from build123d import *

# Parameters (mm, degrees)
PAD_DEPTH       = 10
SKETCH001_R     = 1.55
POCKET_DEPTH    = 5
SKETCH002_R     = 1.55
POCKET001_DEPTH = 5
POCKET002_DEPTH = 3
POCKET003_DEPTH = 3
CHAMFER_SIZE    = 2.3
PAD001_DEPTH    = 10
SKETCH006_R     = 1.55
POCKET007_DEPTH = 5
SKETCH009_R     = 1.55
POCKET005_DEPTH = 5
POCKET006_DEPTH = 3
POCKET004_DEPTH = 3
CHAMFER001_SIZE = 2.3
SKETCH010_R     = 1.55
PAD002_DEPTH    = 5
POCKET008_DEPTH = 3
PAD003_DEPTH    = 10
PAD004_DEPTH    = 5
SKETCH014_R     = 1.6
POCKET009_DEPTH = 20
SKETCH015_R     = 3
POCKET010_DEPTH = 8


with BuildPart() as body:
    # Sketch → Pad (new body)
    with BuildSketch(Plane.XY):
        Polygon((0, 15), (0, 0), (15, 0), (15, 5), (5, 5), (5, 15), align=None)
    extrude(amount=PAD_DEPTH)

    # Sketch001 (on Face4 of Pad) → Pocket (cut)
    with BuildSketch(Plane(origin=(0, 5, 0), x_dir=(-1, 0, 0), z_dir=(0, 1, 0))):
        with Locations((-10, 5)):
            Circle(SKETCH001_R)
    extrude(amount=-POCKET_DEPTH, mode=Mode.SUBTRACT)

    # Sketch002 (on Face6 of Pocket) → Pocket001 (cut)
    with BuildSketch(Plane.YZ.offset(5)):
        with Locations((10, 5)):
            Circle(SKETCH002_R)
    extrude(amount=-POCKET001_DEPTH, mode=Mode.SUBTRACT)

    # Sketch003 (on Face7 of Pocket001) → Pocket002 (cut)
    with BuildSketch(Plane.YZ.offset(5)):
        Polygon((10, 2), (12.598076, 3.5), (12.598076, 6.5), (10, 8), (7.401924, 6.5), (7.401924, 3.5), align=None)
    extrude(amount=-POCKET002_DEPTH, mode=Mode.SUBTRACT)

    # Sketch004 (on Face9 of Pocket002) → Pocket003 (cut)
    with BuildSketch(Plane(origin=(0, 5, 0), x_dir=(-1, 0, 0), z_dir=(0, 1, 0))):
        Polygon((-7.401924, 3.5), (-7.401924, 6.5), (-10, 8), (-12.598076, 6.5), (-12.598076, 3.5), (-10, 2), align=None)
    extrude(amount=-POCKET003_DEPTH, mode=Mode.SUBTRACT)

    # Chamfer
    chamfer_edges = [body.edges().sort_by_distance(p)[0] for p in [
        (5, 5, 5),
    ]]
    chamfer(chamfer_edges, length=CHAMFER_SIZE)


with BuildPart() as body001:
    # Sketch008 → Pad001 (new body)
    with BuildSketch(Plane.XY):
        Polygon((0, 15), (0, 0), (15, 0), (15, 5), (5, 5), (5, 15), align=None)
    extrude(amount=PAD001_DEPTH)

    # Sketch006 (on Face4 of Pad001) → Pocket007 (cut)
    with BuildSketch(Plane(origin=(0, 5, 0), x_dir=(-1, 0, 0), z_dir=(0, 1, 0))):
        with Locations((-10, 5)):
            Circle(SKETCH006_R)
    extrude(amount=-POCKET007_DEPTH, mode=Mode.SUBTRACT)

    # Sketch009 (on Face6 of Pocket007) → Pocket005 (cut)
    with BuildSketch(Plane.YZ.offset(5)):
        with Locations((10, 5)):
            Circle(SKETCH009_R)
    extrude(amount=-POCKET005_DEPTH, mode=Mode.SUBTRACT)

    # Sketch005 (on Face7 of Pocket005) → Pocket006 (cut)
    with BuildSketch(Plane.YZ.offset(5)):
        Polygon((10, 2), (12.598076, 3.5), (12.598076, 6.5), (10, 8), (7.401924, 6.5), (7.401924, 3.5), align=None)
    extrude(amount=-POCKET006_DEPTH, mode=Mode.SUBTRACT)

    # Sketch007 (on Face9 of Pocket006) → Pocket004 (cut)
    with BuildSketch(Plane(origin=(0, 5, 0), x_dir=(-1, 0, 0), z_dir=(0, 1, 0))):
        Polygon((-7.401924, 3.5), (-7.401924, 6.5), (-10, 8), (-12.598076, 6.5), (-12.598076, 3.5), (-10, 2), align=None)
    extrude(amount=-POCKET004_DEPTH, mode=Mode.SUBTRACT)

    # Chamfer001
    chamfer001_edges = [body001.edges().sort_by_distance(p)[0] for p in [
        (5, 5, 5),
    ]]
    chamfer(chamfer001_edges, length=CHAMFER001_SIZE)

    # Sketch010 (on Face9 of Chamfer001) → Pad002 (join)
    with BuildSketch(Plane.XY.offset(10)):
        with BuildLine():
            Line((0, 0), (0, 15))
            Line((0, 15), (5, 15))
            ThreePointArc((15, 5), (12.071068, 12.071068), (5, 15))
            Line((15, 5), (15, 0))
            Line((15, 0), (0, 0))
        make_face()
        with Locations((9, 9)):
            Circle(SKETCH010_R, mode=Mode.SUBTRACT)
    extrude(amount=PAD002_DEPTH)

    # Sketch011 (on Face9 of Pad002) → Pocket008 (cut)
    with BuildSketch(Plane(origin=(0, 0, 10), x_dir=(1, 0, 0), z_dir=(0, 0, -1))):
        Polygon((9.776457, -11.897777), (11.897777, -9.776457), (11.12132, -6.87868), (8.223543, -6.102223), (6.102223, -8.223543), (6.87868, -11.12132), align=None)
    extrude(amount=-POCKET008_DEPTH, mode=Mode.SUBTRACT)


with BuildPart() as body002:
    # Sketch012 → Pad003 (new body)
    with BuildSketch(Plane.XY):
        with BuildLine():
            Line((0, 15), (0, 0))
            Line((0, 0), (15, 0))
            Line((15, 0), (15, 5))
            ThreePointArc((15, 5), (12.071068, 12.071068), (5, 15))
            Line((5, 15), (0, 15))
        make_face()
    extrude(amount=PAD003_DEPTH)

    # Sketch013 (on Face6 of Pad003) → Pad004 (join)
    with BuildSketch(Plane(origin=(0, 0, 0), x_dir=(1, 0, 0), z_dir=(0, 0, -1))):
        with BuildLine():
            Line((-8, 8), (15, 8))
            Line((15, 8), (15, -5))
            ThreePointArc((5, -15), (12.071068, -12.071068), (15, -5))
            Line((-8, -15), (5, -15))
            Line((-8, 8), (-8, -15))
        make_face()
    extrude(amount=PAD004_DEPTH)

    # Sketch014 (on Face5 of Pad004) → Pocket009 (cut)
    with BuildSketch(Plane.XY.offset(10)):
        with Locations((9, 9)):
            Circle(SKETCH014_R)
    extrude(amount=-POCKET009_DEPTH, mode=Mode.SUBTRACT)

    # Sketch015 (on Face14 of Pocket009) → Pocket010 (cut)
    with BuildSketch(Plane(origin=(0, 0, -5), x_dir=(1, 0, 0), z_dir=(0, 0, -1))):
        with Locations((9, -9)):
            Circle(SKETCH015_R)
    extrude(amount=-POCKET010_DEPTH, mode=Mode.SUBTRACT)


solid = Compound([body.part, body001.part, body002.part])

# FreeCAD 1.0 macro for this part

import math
import FreeCAD as App
import Part
import Sketcher
Q = App.Units.Quantity


def edges_at(feature, points):
    """Names of the edges that pass closest to the given points."""
    edges = feature.Shape.Edges
    near = lambda p: min(range(len(edges)), key=lambda i: edges[i].distToShape(Part.Vertex(*p))[0])
    return sorted({f"Edge{near(p) + 1}" for p in points})

doc = App.newDocument("Part")
body = doc.addObject("PartDesign::Body", "Body")

# Sketch on XY plane
sketch1 = body.newObject("Sketcher::SketchObject", "Sketch")
sketch1.AttachmentSupport = (doc.getObject("XY_Plane"), [""])
sketch1.MapMode = "FlatFace"
sketch1.addGeometry(Part.LineSegment(App.Vector(0, 15, 0), App.Vector(0, 0, 0)), False)
sketch1.addGeometry(Part.LineSegment(App.Vector(0, 0, 0), App.Vector(15, 0, 0)), False)
sketch1.addGeometry(Part.LineSegment(App.Vector(15, 0, 0), App.Vector(15, 5, 0)), False)
sketch1.addGeometry(Part.LineSegment(App.Vector(15, 5, 0), App.Vector(5, 5, 0)), False)
sketch1.addGeometry(Part.LineSegment(App.Vector(5, 5, 0), App.Vector(5, 15, 0)), False)
sketch1.addGeometry(Part.LineSegment(App.Vector(5, 15, 0), App.Vector(0, 15, 0)), False)
sketch1.addConstraint(Sketcher.Constraint("Coincident", 0, 2, 1, 1))
sketch1.addConstraint(Sketcher.Constraint("Coincident", 1, 2, 2, 1))
sketch1.addConstraint(Sketcher.Constraint("Coincident", 2, 2, 3, 1))
sketch1.addConstraint(Sketcher.Constraint("Coincident", 3, 2, 4, 1))
sketch1.addConstraint(Sketcher.Constraint("Coincident", 4, 2, 5, 1))
sketch1.addConstraint(Sketcher.Constraint("Coincident", 5, 2, 0, 1))
sketch1.addConstraint(Sketcher.Constraint("Vertical", 0))
sketch1.addConstraint(Sketcher.Constraint("Horizontal", 1))
sketch1.addConstraint(Sketcher.Constraint("Vertical", 2))
sketch1.addConstraint(Sketcher.Constraint("Horizontal", 3))
sketch1.addConstraint(Sketcher.Constraint("Vertical", 4))
sketch1.addConstraint(Sketcher.Constraint("Horizontal", 5))
sketch1.addConstraint(Sketcher.Constraint("Coincident", 0, 2, -1, 1))
sketch1.addConstraint(Sketcher.Constraint("Equal", 1, 0))
sketch1.addConstraint(Sketcher.Constraint("Equal", 5, 2))
sketch1.addConstraint(Sketcher.Constraint("DistanceX", 1, 1, 1, 2, 15.0))
sketch1.addConstraint(Sketcher.Constraint("DistanceX", 3, 2, 3, 1, 10.0))
pad1 = body.newObject("PartDesign::Pad", "Pad")
pad1.Profile = sketch1
pad1.Length = 10

# Sketch on XZ plane
sketch2 = body.newObject("Sketcher::SketchObject", "Sketch001")
sketch2.AttachmentSupport = (doc.getObject("XZ_Plane"), [""])
sketch2.MapMode = "FlatFace"
sketch2.AttachmentOffset = App.Placement(App.Vector(0, 0, -5), App.Rotation())
sketch2.addGeometry(Part.Circle(App.Vector(10, 5, 0), App.Vector(0, 0, 1), 1.6), False)
sketch2.addConstraint(Sketcher.Constraint("Diameter", 0, 3.1))
sketch2.addConstraint(Sketcher.Constraint("DistanceX", -1, 1, 0, 3, 10.0))
sketch2.addConstraint(Sketcher.Constraint("DistanceY", -1, 1, 0, 3, 5.0))
pocket1 = body.newObject("PartDesign::Pocket", "Pocket")
pocket1.Profile = sketch2
pocket1.Length = 5
pocket1.Reversed = True

# Sketch on YZ plane
sketch3 = body.newObject("Sketcher::SketchObject", "Sketch002")
sketch3.AttachmentSupport = (doc.getObject("YZ_Plane"), [""])
sketch3.MapMode = "FlatFace"
sketch3.AttachmentOffset = App.Placement(App.Vector(0, 0, 5), App.Rotation())
sketch3.addGeometry(Part.Circle(App.Vector(10, 5, 0), App.Vector(0, 0, 1), 1.6), False)
sketch3.addConstraint(Sketcher.Constraint("Diameter", 0, 3.1))
sketch3.addConstraint(Sketcher.Constraint("DistanceX", -1, 1, 0, 3, 10.0))
sketch3.addConstraint(Sketcher.Constraint("DistanceY", -1, 1, 0, 3, 5.0))
pocket2 = body.newObject("PartDesign::Pocket", "Pocket001")
pocket2.Profile = sketch3
pocket2.Length = 5

# Sketch on YZ plane
sketch4 = body.newObject("Sketcher::SketchObject", "Sketch003")
sketch4.AttachmentSupport = (doc.getObject("YZ_Plane"), [""])
sketch4.MapMode = "FlatFace"
sketch4.AttachmentOffset = App.Placement(App.Vector(0, 0, 5), App.Rotation())
sketch4.addGeometry(Part.LineSegment(App.Vector(10, 2, 0), App.Vector(12.6, 3.5, 0)), False)
sketch4.addGeometry(Part.LineSegment(App.Vector(12.6, 3.5, 0), App.Vector(12.6, 6.5, 0)), False)
sketch4.addGeometry(Part.LineSegment(App.Vector(12.6, 6.5, 0), App.Vector(10, 8, 0)), False)
sketch4.addGeometry(Part.LineSegment(App.Vector(10, 8, 0), App.Vector(7.4, 6.5, 0)), False)
sketch4.addGeometry(Part.LineSegment(App.Vector(7.4, 6.5, 0), App.Vector(7.4, 3.5, 0)), False)
sketch4.addGeometry(Part.LineSegment(App.Vector(7.4, 3.5, 0), App.Vector(10, 2, 0)), False)
sketch4.addConstraint(Sketcher.Constraint("Coincident", 0, 2, 1, 1))
sketch4.addConstraint(Sketcher.Constraint("Coincident", 1, 2, 2, 1))
sketch4.addConstraint(Sketcher.Constraint("Coincident", 2, 2, 3, 1))
sketch4.addConstraint(Sketcher.Constraint("Coincident", 3, 2, 4, 1))
sketch4.addConstraint(Sketcher.Constraint("Coincident", 4, 2, 5, 1))
sketch4.addConstraint(Sketcher.Constraint("Coincident", 5, 2, 0, 1))
sketch4.addConstraint(Sketcher.Constraint("Vertical", 1))
sketch4.addConstraint(Sketcher.Constraint("Vertical", 4))
sketch4.addConstraint(Sketcher.Constraint("Parallel", 0, 3))
sketch4.addConstraint(Sketcher.Constraint("Parallel", 2, 5))
sketch4.addConstraint(Sketcher.Constraint("Horizontal", 1, 2, 3, 2))
sketch4.addConstraint(Sketcher.Constraint("Horizontal", 0, 2, 4, 2))
sketch4.addConstraint(Sketcher.Constraint("Vertical", 2, 2, 5, 2))
sketch4.addConstraint(Sketcher.Constraint("DistanceY", 1, 1, 1, 2, 3.0))
sketch4.addConstraint(Sketcher.Constraint("Angle", 0, Q("30.000002 deg")))
sketch4.addConstraint(Sketcher.Constraint("Distance", 0, 3.0))
sketch4.addConstraint(Sketcher.Constraint("DistanceX", -1, 1, 2, 2, 10.0))
sketch4.addConstraint(Sketcher.Constraint("DistanceY", -1, 1, 2, 2, 8.0))
pocket3 = body.newObject("PartDesign::Pocket", "Pocket002")
pocket3.Profile = sketch4
pocket3.Length = 3

# Sketch on XZ plane
sketch5 = body.newObject("Sketcher::SketchObject", "Sketch004")
sketch5.AttachmentSupport = (doc.getObject("XZ_Plane"), [""])
sketch5.MapMode = "FlatFace"
sketch5.AttachmentOffset = App.Placement(App.Vector(0, 0, -5), App.Rotation())
sketch5.addGeometry(Part.LineSegment(App.Vector(7.4, 3.5, 0), App.Vector(7.4, 6.5, 0)), False)
sketch5.addGeometry(Part.LineSegment(App.Vector(7.4, 6.5, 0), App.Vector(10, 8, 0)), False)
sketch5.addGeometry(Part.LineSegment(App.Vector(10, 8, 0), App.Vector(12.6, 6.5, 0)), False)
sketch5.addGeometry(Part.LineSegment(App.Vector(12.6, 6.5, 0), App.Vector(12.6, 3.5, 0)), False)
sketch5.addGeometry(Part.LineSegment(App.Vector(12.6, 3.5, 0), App.Vector(10, 2, 0)), False)
sketch5.addGeometry(Part.LineSegment(App.Vector(10, 2, 0), App.Vector(7.4, 3.5, 0)), False)
sketch5.addConstraint(Sketcher.Constraint("Coincident", 0, 2, 1, 1))
sketch5.addConstraint(Sketcher.Constraint("Coincident", 1, 2, 2, 1))
sketch5.addConstraint(Sketcher.Constraint("Coincident", 2, 2, 3, 1))
sketch5.addConstraint(Sketcher.Constraint("Coincident", 3, 2, 4, 1))
sketch5.addConstraint(Sketcher.Constraint("Coincident", 4, 2, 5, 1))
sketch5.addConstraint(Sketcher.Constraint("Coincident", 5, 2, 0, 1))
sketch5.addConstraint(Sketcher.Constraint("Vertical", 0))
sketch5.addConstraint(Sketcher.Constraint("Vertical", 3))
sketch5.addConstraint(Sketcher.Constraint("Parallel", 1, 4))
sketch5.addConstraint(Sketcher.Constraint("Parallel", 2, 5))
sketch5.addConstraint(Sketcher.Constraint("Horizontal", 0, 2, 2, 2))
sketch5.addConstraint(Sketcher.Constraint("Horizontal", 3, 2, 5, 2))
sketch5.addConstraint(Sketcher.Constraint("Vertical", 1, 2, 4, 2))
sketch5.addConstraint(Sketcher.Constraint("DistanceY", 0, 1, 0, 2, 3.0))
sketch5.addConstraint(Sketcher.Constraint("Angle", 1, Q("30.000002 deg")))
sketch5.addConstraint(Sketcher.Constraint("Distance", 1, 3.0))
sketch5.addConstraint(Sketcher.Constraint("DistanceX", -1, 1, 1, 2, 10.0))
sketch5.addConstraint(Sketcher.Constraint("DistanceY", -1, 1, 1, 2, 8.0))
pocket4 = body.newObject("PartDesign::Pocket", "Pocket003")
pocket4.Profile = sketch5
pocket4.Length = 3
pocket4.Reversed = True
doc.recompute()

chamfer = body.newObject("PartDesign::Chamfer", "Chamfer")
chamfer.Base = (pocket4, edges_at(pocket4, [(5, 5, 5)]))
chamfer.Size = 2.3
body2 = doc.addObject("PartDesign::Body", "Body001")

# Sketch on XY plane
sketch6 = body2.newObject("Sketcher::SketchObject", "Sketch005")
sketch6.AttachmentSupport = (doc.getObject("XY_Plane001"), [""])
sketch6.MapMode = "FlatFace"
sketch6.addGeometry(Part.LineSegment(App.Vector(0, 15, 0), App.Vector(0, 0, 0)), False)
sketch6.addGeometry(Part.LineSegment(App.Vector(0, 0, 0), App.Vector(15, 0, 0)), False)
sketch6.addGeometry(Part.LineSegment(App.Vector(15, 0, 0), App.Vector(15, 5, 0)), False)
sketch6.addGeometry(Part.LineSegment(App.Vector(15, 5, 0), App.Vector(5, 5, 0)), False)
sketch6.addGeometry(Part.LineSegment(App.Vector(5, 5, 0), App.Vector(5, 15, 0)), False)
sketch6.addGeometry(Part.LineSegment(App.Vector(5, 15, 0), App.Vector(0, 15, 0)), False)
sketch6.addConstraint(Sketcher.Constraint("Coincident", 0, 2, 1, 1))
sketch6.addConstraint(Sketcher.Constraint("Coincident", 1, 2, 2, 1))
sketch6.addConstraint(Sketcher.Constraint("Coincident", 2, 2, 3, 1))
sketch6.addConstraint(Sketcher.Constraint("Coincident", 3, 2, 4, 1))
sketch6.addConstraint(Sketcher.Constraint("Coincident", 4, 2, 5, 1))
sketch6.addConstraint(Sketcher.Constraint("Coincident", 5, 2, 0, 1))
sketch6.addConstraint(Sketcher.Constraint("Vertical", 0))
sketch6.addConstraint(Sketcher.Constraint("Horizontal", 1))
sketch6.addConstraint(Sketcher.Constraint("Vertical", 2))
sketch6.addConstraint(Sketcher.Constraint("Horizontal", 3))
sketch6.addConstraint(Sketcher.Constraint("Vertical", 4))
sketch6.addConstraint(Sketcher.Constraint("Horizontal", 5))
sketch6.addConstraint(Sketcher.Constraint("Coincident", 0, 2, -1, 1))
sketch6.addConstraint(Sketcher.Constraint("Equal", 1, 0))
sketch6.addConstraint(Sketcher.Constraint("Equal", 5, 2))
sketch6.addConstraint(Sketcher.Constraint("DistanceX", 1, 1, 1, 2, 15.0))
sketch6.addConstraint(Sketcher.Constraint("DistanceX", 3, 2, 3, 1, 10.0))
pad2 = body2.newObject("PartDesign::Pad", "Pad001")
pad2.Profile = sketch6
pad2.Length = 10

# Sketch on XZ plane
sketch7 = body2.newObject("Sketcher::SketchObject", "Sketch006")
sketch7.AttachmentSupport = (doc.getObject("XZ_Plane001"), [""])
sketch7.MapMode = "FlatFace"
sketch7.AttachmentOffset = App.Placement(App.Vector(0, 0, -5), App.Rotation())
sketch7.addGeometry(Part.Circle(App.Vector(10, 5, 0), App.Vector(0, 0, 1), 1.6), False)
sketch7.addConstraint(Sketcher.Constraint("Diameter", 0, 3.1))
sketch7.addConstraint(Sketcher.Constraint("DistanceX", -1, 1, 0, 3, 10.0))
sketch7.addConstraint(Sketcher.Constraint("DistanceY", -1, 1, 0, 3, 5.0))
pocket5 = body2.newObject("PartDesign::Pocket", "Pocket004")
pocket5.Profile = sketch7
pocket5.Length = 5
pocket5.Reversed = True

# Sketch on YZ plane
sketch8 = body2.newObject("Sketcher::SketchObject", "Sketch007")
sketch8.AttachmentSupport = (doc.getObject("YZ_Plane001"), [""])
sketch8.MapMode = "FlatFace"
sketch8.AttachmentOffset = App.Placement(App.Vector(0, 0, 5), App.Rotation())
sketch8.addGeometry(Part.Circle(App.Vector(10, 5, 0), App.Vector(0, 0, 1), 1.6), False)
sketch8.addConstraint(Sketcher.Constraint("Diameter", 0, 3.1))
sketch8.addConstraint(Sketcher.Constraint("DistanceX", -1, 1, 0, 3, 10.0))
sketch8.addConstraint(Sketcher.Constraint("DistanceY", -1, 1, 0, 3, 5.0))
pocket6 = body2.newObject("PartDesign::Pocket", "Pocket005")
pocket6.Profile = sketch8
pocket6.Length = 5

# Sketch on YZ plane
sketch9 = body2.newObject("Sketcher::SketchObject", "Sketch008")
sketch9.AttachmentSupport = (doc.getObject("YZ_Plane001"), [""])
sketch9.MapMode = "FlatFace"
sketch9.AttachmentOffset = App.Placement(App.Vector(0, 0, 5), App.Rotation())
sketch9.addGeometry(Part.LineSegment(App.Vector(10, 2, 0), App.Vector(12.6, 3.5, 0)), False)
sketch9.addGeometry(Part.LineSegment(App.Vector(12.6, 3.5, 0), App.Vector(12.6, 6.5, 0)), False)
sketch9.addGeometry(Part.LineSegment(App.Vector(12.6, 6.5, 0), App.Vector(10, 8, 0)), False)
sketch9.addGeometry(Part.LineSegment(App.Vector(10, 8, 0), App.Vector(7.4, 6.5, 0)), False)
sketch9.addGeometry(Part.LineSegment(App.Vector(7.4, 6.5, 0), App.Vector(7.4, 3.5, 0)), False)
sketch9.addGeometry(Part.LineSegment(App.Vector(7.4, 3.5, 0), App.Vector(10, 2, 0)), False)
sketch9.addConstraint(Sketcher.Constraint("Coincident", 0, 2, 1, 1))
sketch9.addConstraint(Sketcher.Constraint("Coincident", 1, 2, 2, 1))
sketch9.addConstraint(Sketcher.Constraint("Coincident", 2, 2, 3, 1))
sketch9.addConstraint(Sketcher.Constraint("Coincident", 3, 2, 4, 1))
sketch9.addConstraint(Sketcher.Constraint("Coincident", 4, 2, 5, 1))
sketch9.addConstraint(Sketcher.Constraint("Coincident", 5, 2, 0, 1))
sketch9.addConstraint(Sketcher.Constraint("Vertical", 1))
sketch9.addConstraint(Sketcher.Constraint("Vertical", 4))
sketch9.addConstraint(Sketcher.Constraint("Parallel", 0, 3))
sketch9.addConstraint(Sketcher.Constraint("Parallel", 2, 5))
sketch9.addConstraint(Sketcher.Constraint("Horizontal", 1, 2, 3, 2))
sketch9.addConstraint(Sketcher.Constraint("Horizontal", 0, 2, 4, 2))
sketch9.addConstraint(Sketcher.Constraint("Vertical", 2, 2, 5, 2))
sketch9.addConstraint(Sketcher.Constraint("DistanceY", 1, 1, 1, 2, 3.0))
sketch9.addConstraint(Sketcher.Constraint("Angle", 0, Q("30.000002 deg")))
sketch9.addConstraint(Sketcher.Constraint("Distance", 0, 3.0))
sketch9.addConstraint(Sketcher.Constraint("DistanceX", -1, 1, 2, 2, 10.0))
sketch9.addConstraint(Sketcher.Constraint("DistanceY", -1, 1, 2, 2, 8.0))
pocket7 = body2.newObject("PartDesign::Pocket", "Pocket006")
pocket7.Profile = sketch9
pocket7.Length = 3

# Sketch on XZ plane
sketch10 = body2.newObject("Sketcher::SketchObject", "Sketch009")
sketch10.AttachmentSupport = (doc.getObject("XZ_Plane001"), [""])
sketch10.MapMode = "FlatFace"
sketch10.AttachmentOffset = App.Placement(App.Vector(0, 0, -5), App.Rotation())
sketch10.addGeometry(Part.LineSegment(App.Vector(7.4, 3.5, 0), App.Vector(7.4, 6.5, 0)), False)
sketch10.addGeometry(Part.LineSegment(App.Vector(7.4, 6.5, 0), App.Vector(10, 8, 0)), False)
sketch10.addGeometry(Part.LineSegment(App.Vector(10, 8, 0), App.Vector(12.6, 6.5, 0)), False)
sketch10.addGeometry(Part.LineSegment(App.Vector(12.6, 6.5, 0), App.Vector(12.6, 3.5, 0)), False)
sketch10.addGeometry(Part.LineSegment(App.Vector(12.6, 3.5, 0), App.Vector(10, 2, 0)), False)
sketch10.addGeometry(Part.LineSegment(App.Vector(10, 2, 0), App.Vector(7.4, 3.5, 0)), False)
sketch10.addConstraint(Sketcher.Constraint("Coincident", 0, 2, 1, 1))
sketch10.addConstraint(Sketcher.Constraint("Coincident", 1, 2, 2, 1))
sketch10.addConstraint(Sketcher.Constraint("Coincident", 2, 2, 3, 1))
sketch10.addConstraint(Sketcher.Constraint("Coincident", 3, 2, 4, 1))
sketch10.addConstraint(Sketcher.Constraint("Coincident", 4, 2, 5, 1))
sketch10.addConstraint(Sketcher.Constraint("Coincident", 5, 2, 0, 1))
sketch10.addConstraint(Sketcher.Constraint("Vertical", 0))
sketch10.addConstraint(Sketcher.Constraint("Vertical", 3))
sketch10.addConstraint(Sketcher.Constraint("Parallel", 1, 4))
sketch10.addConstraint(Sketcher.Constraint("Parallel", 2, 5))
sketch10.addConstraint(Sketcher.Constraint("Horizontal", 0, 2, 2, 2))
sketch10.addConstraint(Sketcher.Constraint("Horizontal", 3, 2, 5, 2))
sketch10.addConstraint(Sketcher.Constraint("Vertical", 1, 2, 4, 2))
sketch10.addConstraint(Sketcher.Constraint("DistanceY", 0, 1, 0, 2, 3.0))
sketch10.addConstraint(Sketcher.Constraint("Angle", 1, Q("30.000002 deg")))
sketch10.addConstraint(Sketcher.Constraint("Distance", 1, 3.0))
sketch10.addConstraint(Sketcher.Constraint("DistanceX", -1, 1, 1, 2, 10.0))
sketch10.addConstraint(Sketcher.Constraint("DistanceY", -1, 1, 1, 2, 8.0))
pocket8 = body2.newObject("PartDesign::Pocket", "Pocket007")
pocket8.Profile = sketch10
pocket8.Length = 3
pocket8.Reversed = True
doc.recompute()

chamfer2 = body2.newObject("PartDesign::Chamfer", "Chamfer001")
chamfer2.Base = (pocket8, edges_at(pocket8, [(5, 5, 5)]))
chamfer2.Size = 2.3

# Sketch on XY plane
sketch11 = body2.newObject("Sketcher::SketchObject", "Sketch010")
sketch11.AttachmentSupport = (doc.getObject("XY_Plane001"), [""])
sketch11.MapMode = "FlatFace"
sketch11.AttachmentOffset = App.Placement(App.Vector(0, 0, 10), App.Rotation())
sketch11.addGeometry(Part.LineSegment(App.Vector(0, 15, 0), App.Vector(0, 0, 0)), False)
sketch11.addGeometry(Part.LineSegment(App.Vector(0, 0, 0), App.Vector(15, 0, 0)), False)
sketch11.addGeometry(Part.LineSegment(App.Vector(15, 0, 0), App.Vector(15, 5, 0)), False)
sketch11.addGeometry(Part.ArcOfCircle(Part.Circle(App.Vector(5, 5, 0), App.Vector(0, 0, 1), 10), math.radians(0), math.radians(90)), False)
sketch11.addGeometry(Part.LineSegment(App.Vector(5, 15, 0), App.Vector(0, 15, 0)), False)
sketch11.addGeometry(Part.Circle(App.Vector(9, 9, 0), App.Vector(0, 0, 1), 1.6), False)
sketch11.addConstraint(Sketcher.Constraint("Coincident", 0, 2, 1, 1))
sketch11.addConstraint(Sketcher.Constraint("Coincident", 1, 2, 2, 1))
sketch11.addConstraint(Sketcher.Constraint("Tangent", 2, 2, 3, 1))
sketch11.addConstraint(Sketcher.Constraint("Tangent", 3, 2, 4, 1))
sketch11.addConstraint(Sketcher.Constraint("Coincident", 4, 2, 0, 1))
sketch11.addConstraint(Sketcher.Constraint("Vertical", 0))
sketch11.addConstraint(Sketcher.Constraint("Horizontal", 1))
sketch11.addConstraint(Sketcher.Constraint("Vertical", 2))
sketch11.addConstraint(Sketcher.Constraint("Horizontal", 4))
sketch11.addConstraint(Sketcher.Constraint("Coincident", 0, 2, -1, 1))
sketch11.addConstraint(Sketcher.Constraint("Equal", 1, 0))
sketch11.addConstraint(Sketcher.Constraint("Radius", 3, 9.999999))
sketch11.addConstraint(Sketcher.Constraint("Diameter", 5, 3.1))
sketch11.addConstraint(Sketcher.Constraint("DistanceX", 1, 1, 1, 2, 15.0))
sketch11.addConstraint(Sketcher.Constraint("DistanceX", -1, 1, 5, 3, 9.0))
sketch11.addConstraint(Sketcher.Constraint("DistanceY", -1, 1, 5, 3, 9.0))
pad3 = body2.newObject("PartDesign::Pad", "Pad002")
pad3.Profile = sketch11
pad3.Length = 5

# Sketch on XY plane
sketch12 = body2.newObject("Sketcher::SketchObject", "Sketch011")
sketch12.AttachmentSupport = (doc.getObject("XY_Plane001"), [""])
sketch12.MapMode = "FlatFace"
sketch12.AttachmentOffset = App.Placement(App.Vector(0, 0, 10), App.Rotation())
sketch12.addGeometry(Part.LineSegment(App.Vector(9.8, 11.9, 0), App.Vector(11.9, 9.8, 0)), False)
sketch12.addGeometry(Part.LineSegment(App.Vector(11.9, 9.8, 0), App.Vector(11.1, 6.9, 0)), False)
sketch12.addGeometry(Part.LineSegment(App.Vector(11.1, 6.9, 0), App.Vector(8.2, 6.1, 0)), False)
sketch12.addGeometry(Part.LineSegment(App.Vector(8.2, 6.1, 0), App.Vector(6.1, 8.2, 0)), False)
sketch12.addGeometry(Part.LineSegment(App.Vector(6.1, 8.2, 0), App.Vector(6.9, 11.1, 0)), False)
sketch12.addGeometry(Part.LineSegment(App.Vector(6.9, 11.1, 0), App.Vector(9.8, 11.9, 0)), False)
sketch12.addConstraint(Sketcher.Constraint("Coincident", 0, 2, 1, 1))
sketch12.addConstraint(Sketcher.Constraint("Coincident", 1, 2, 2, 1))
sketch12.addConstraint(Sketcher.Constraint("Coincident", 2, 2, 3, 1))
sketch12.addConstraint(Sketcher.Constraint("Coincident", 3, 2, 4, 1))
sketch12.addConstraint(Sketcher.Constraint("Coincident", 4, 2, 5, 1))
sketch12.addConstraint(Sketcher.Constraint("Coincident", 5, 2, 0, 1))
sketch12.addConstraint(Sketcher.Constraint("Parallel", 0, 3))
sketch12.addConstraint(Sketcher.Constraint("Parallel", 1, 4))
sketch12.addConstraint(Sketcher.Constraint("Parallel", 2, 5))
sketch12.addConstraint(Sketcher.Constraint("Equal", 0, 1))
sketch12.addConstraint(Sketcher.Constraint("Equal", 1, 2))
sketch12.addConstraint(Sketcher.Constraint("Equal", 2, 3))
sketch12.addConstraint(Sketcher.Constraint("Angle", 0, Q("-45 deg")))
sketch12.addConstraint(Sketcher.Constraint("Angle", 1, Q("-105 deg")))
sketch12.addConstraint(Sketcher.Constraint("Angle", 2, Q("-165 deg")))
sketch12.addConstraint(Sketcher.Constraint("Distance", 0, 3.0))
sketch12.addConstraint(Sketcher.Constraint("DistanceX", -1, 1, 1, 2, 11.12132))
sketch12.addConstraint(Sketcher.Constraint("DistanceY", -1, 1, 1, 2, 6.87868))
pocket9 = body2.newObject("PartDesign::Pocket", "Pocket008")
pocket9.Profile = sketch12
pocket9.Length = 3
pocket9.Reversed = True
body3 = doc.addObject("PartDesign::Body", "Body002")

# Sketch on XY plane
sketch13 = body3.newObject("Sketcher::SketchObject", "Sketch012")
sketch13.AttachmentSupport = (doc.getObject("XY_Plane002"), [""])
sketch13.MapMode = "FlatFace"
sketch13.addGeometry(Part.LineSegment(App.Vector(0, 15, 0), App.Vector(0, 0, 0)), False)
sketch13.addGeometry(Part.LineSegment(App.Vector(0, 0, 0), App.Vector(15, 0, 0)), False)
sketch13.addGeometry(Part.LineSegment(App.Vector(15, 0, 0), App.Vector(15, 5, 0)), False)
sketch13.addGeometry(Part.ArcOfCircle(Part.Circle(App.Vector(5, 5, 0), App.Vector(0, 0, 1), 10), math.radians(0), math.radians(90)), False)
sketch13.addGeometry(Part.LineSegment(App.Vector(5, 15, 0), App.Vector(0, 15, 0)), False)
sketch13.addConstraint(Sketcher.Constraint("Coincident", 0, 2, 1, 1))
sketch13.addConstraint(Sketcher.Constraint("Coincident", 1, 2, 2, 1))
sketch13.addConstraint(Sketcher.Constraint("Tangent", 2, 2, 3, 1))
sketch13.addConstraint(Sketcher.Constraint("Tangent", 3, 2, 4, 1))
sketch13.addConstraint(Sketcher.Constraint("Coincident", 4, 2, 0, 1))
sketch13.addConstraint(Sketcher.Constraint("Vertical", 0))
sketch13.addConstraint(Sketcher.Constraint("Horizontal", 1))
sketch13.addConstraint(Sketcher.Constraint("Vertical", 2))
sketch13.addConstraint(Sketcher.Constraint("Horizontal", 4))
sketch13.addConstraint(Sketcher.Constraint("Coincident", 0, 2, -1, 1))
sketch13.addConstraint(Sketcher.Constraint("Equal", 1, 0))
sketch13.addConstraint(Sketcher.Constraint("Radius", 3, 9.999999))
sketch13.addConstraint(Sketcher.Constraint("DistanceX", 1, 1, 1, 2, 15.0))
pad4 = body3.newObject("PartDesign::Pad", "Pad003")
pad4.Profile = sketch13
pad4.Length = 10

# Sketch on XY plane
sketch14 = body3.newObject("Sketcher::SketchObject", "Sketch013")
sketch14.AttachmentSupport = (doc.getObject("XY_Plane002"), [""])
sketch14.MapMode = "FlatFace"
sketch14.addGeometry(Part.LineSegment(App.Vector(15, -8, 0), App.Vector(-8, -8, 0)), False)
sketch14.addGeometry(Part.LineSegment(App.Vector(-8, -8, 0), App.Vector(-8, 15, 0)), False)
sketch14.addGeometry(Part.LineSegment(App.Vector(-8, 15, 0), App.Vector(5, 15, 0)), False)
sketch14.addGeometry(Part.ArcOfCircle(Part.Circle(App.Vector(5, 5, 0), App.Vector(0, 0, 1), 10), math.radians(0), math.radians(90)), False)
sketch14.addGeometry(Part.LineSegment(App.Vector(15, 5, 0), App.Vector(15, -8, 0)), False)
sketch14.addConstraint(Sketcher.Constraint("Coincident", 0, 2, 1, 1))
sketch14.addConstraint(Sketcher.Constraint("Coincident", 1, 2, 2, 1))
sketch14.addConstraint(Sketcher.Constraint("Tangent", 2, 2, 3, 2))
sketch14.addConstraint(Sketcher.Constraint("Tangent", 3, 1, 4, 1))
sketch14.addConstraint(Sketcher.Constraint("Coincident", 4, 2, 0, 1))
sketch14.addConstraint(Sketcher.Constraint("Horizontal", 0))
sketch14.addConstraint(Sketcher.Constraint("Vertical", 1))
sketch14.addConstraint(Sketcher.Constraint("Horizontal", 2))
sketch14.addConstraint(Sketcher.Constraint("Vertical", 4))
sketch14.addConstraint(Sketcher.Constraint("Equal", 0, 1))
sketch14.addConstraint(Sketcher.Constraint("Radius", 3, 9.999999))
sketch14.addConstraint(Sketcher.Constraint("DistanceX", 0, 2, 0, 1, 23.0))
sketch14.addConstraint(Sketcher.Constraint("DistanceX", -1, 1, 3, 3, 5.000001))
sketch14.addConstraint(Sketcher.Constraint("DistanceY", -1, 1, 3, 3, 5.000001))
pad5 = body3.newObject("PartDesign::Pad", "Pad004")
pad5.Profile = sketch14
pad5.Length = 5
pad5.Reversed = True

# Sketch on XY plane
sketch15 = body3.newObject("Sketcher::SketchObject", "Sketch014")
sketch15.AttachmentSupport = (doc.getObject("XY_Plane002"), [""])
sketch15.MapMode = "FlatFace"
sketch15.AttachmentOffset = App.Placement(App.Vector(0, 0, 10), App.Rotation())
sketch15.addGeometry(Part.Circle(App.Vector(9, 9, 0), App.Vector(0, 0, 1), 1.6), False)
sketch15.addConstraint(Sketcher.Constraint("Diameter", 0, 3.2))
sketch15.addConstraint(Sketcher.Constraint("DistanceX", -1, 1, 0, 3, 9.0))
sketch15.addConstraint(Sketcher.Constraint("DistanceY", -1, 1, 0, 3, 9.0))
pocket10 = body3.newObject("PartDesign::Pocket", "Pocket009")
pocket10.Profile = sketch15
pocket10.Length = 20

# Sketch on XY plane
sketch16 = body3.newObject("Sketcher::SketchObject", "Sketch015")
sketch16.AttachmentSupport = (doc.getObject("XY_Plane002"), [""])
sketch16.MapMode = "FlatFace"
sketch16.AttachmentOffset = App.Placement(App.Vector(0, 0, -5), App.Rotation())
sketch16.addGeometry(Part.Circle(App.Vector(9, 9, 0), App.Vector(0, 0, 1), 3), False)
sketch16.addConstraint(Sketcher.Constraint("Diameter", 0, 6.0))
sketch16.addConstraint(Sketcher.Constraint("DistanceX", -1, 1, 0, 3, 9.0))
sketch16.addConstraint(Sketcher.Constraint("DistanceY", -1, 1, 0, 3, 9.0))
pocket11 = body3.newObject("PartDesign::Pocket", "Pocket010")
pocket11.Profile = sketch16
pocket11.Length = 8
pocket11.Reversed = True

doc.recompute()
